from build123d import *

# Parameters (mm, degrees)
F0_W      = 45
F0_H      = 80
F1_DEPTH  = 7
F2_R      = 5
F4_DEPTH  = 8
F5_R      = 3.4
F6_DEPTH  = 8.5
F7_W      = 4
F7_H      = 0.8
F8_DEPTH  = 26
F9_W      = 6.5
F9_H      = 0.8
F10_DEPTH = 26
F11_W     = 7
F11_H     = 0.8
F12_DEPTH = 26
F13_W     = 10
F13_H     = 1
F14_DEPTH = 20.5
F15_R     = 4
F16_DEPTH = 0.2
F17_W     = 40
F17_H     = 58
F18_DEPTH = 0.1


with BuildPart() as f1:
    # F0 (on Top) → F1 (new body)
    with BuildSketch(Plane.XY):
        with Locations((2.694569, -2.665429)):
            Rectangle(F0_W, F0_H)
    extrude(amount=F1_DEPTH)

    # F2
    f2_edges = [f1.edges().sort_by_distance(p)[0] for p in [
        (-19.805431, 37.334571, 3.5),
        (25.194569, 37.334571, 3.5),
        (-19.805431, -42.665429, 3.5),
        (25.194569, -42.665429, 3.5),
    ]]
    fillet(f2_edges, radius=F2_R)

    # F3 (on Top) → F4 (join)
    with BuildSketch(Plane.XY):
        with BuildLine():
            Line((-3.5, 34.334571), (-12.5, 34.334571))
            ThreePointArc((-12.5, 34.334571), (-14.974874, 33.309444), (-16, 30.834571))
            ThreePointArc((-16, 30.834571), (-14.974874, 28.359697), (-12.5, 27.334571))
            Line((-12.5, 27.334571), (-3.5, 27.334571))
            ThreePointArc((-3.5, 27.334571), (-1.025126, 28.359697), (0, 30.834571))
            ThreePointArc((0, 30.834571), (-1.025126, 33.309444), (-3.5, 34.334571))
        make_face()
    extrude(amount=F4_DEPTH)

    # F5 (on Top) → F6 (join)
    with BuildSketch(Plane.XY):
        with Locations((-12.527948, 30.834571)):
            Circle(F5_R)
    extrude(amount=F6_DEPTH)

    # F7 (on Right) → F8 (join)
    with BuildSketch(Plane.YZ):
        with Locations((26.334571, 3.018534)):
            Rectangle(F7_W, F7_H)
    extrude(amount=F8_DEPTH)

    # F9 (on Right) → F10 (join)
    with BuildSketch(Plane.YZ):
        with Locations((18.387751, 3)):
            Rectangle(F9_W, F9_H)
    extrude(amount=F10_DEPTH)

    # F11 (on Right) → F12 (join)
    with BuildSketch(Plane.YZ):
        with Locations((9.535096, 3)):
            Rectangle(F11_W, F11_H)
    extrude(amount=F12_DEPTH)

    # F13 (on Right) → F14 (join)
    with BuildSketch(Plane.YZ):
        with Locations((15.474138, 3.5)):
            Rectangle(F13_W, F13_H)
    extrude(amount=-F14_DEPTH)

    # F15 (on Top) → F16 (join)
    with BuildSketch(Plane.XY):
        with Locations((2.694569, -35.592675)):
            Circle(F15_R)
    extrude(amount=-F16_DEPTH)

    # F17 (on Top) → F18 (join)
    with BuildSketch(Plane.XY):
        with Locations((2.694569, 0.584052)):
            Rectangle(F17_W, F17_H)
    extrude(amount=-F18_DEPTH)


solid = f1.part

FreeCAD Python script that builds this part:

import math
import FreeCAD as App
import Part
import Sketcher

V = App.Vector
Q = App.Units.Quantity


def edges_at(feature, points):
    """Names of the edges that pass closest to the given points."""
    edges = feature.Shape.Edges
    near = lambda p: min(range(len(edges)), key=lambda i: edges[i].distToShape(Part.Vertex(*p))[0])
    return sorted({f"Edge{near(p) + 1}" for p in points})

doc = App.newDocument("Part")
body = doc.addObject("PartDesign::Body", "Body")

# Sketch on XY plane
sketch1 = body.newObject("Sketcher::SketchObject", "Sketch")
sketch1.AttachmentSupport = (doc.getObject("XY_Plane"), [""])
sketch1.MapMode = "FlatFace"
sketch1.addGeometry(Part.LineSegment(V(-19.805431, 37.334571, 0), V(-19.805431, -42.665429, 0)), False)
sketch1.addGeometry(Part.LineSegment(V(-19.805431, -42.665429, 0), V(25.194569, -42.665429, 0)), False)
sketch1.addGeometry(Part.LineSegment(V(25.194569, -42.665429, 0), V(25.194569, 37.334571, 0)), False)
sketch1.addGeometry(Part.LineSegment(V(25.194569, 37.334571, 0), V(-19.805431, 37.334571, 0)), False)
sketch1.addConstraint(Sketcher.Constraint("Coincident", 0, 2, 1, 1))
sketch1.addConstraint(Sketcher.Constraint("Coincident", 1, 2, 2, 1))
sketch1.addConstraint(Sketcher.Constraint("Coincident", 2, 2, 3, 1))
sketch1.addConstraint(Sketcher.Constraint("Coincident", 3, 2, 0, 1))
sketch1.addConstraint(Sketcher.Constraint("Vertical", 0))
sketch1.addConstraint(Sketcher.Constraint("Horizontal", 1))
sketch1.addConstraint(Sketcher.Constraint("Vertical", 2))
sketch1.addConstraint(Sketcher.Constraint("Horizontal", 3))
sketch1.addConstraint(Sketcher.Constraint("DistanceX", 1, 1, 1, 2, Q("45 mm")))
sketch1.addConstraint(Sketcher.Constraint("DistanceY", 0, 2, 0, 1, Q("80 mm")))
sketch1.addConstraint(Sketcher.Constraint("DistanceX", 0, 2, -1, 1, Q("19.805431 mm")))
sketch1.addConstraint(Sketcher.Constraint("DistanceY", 0, 2, -1, 1, Q("42.665429 mm")))
pad1 = body.newObject("PartDesign::Pad", "Pad")
pad1.Profile = sketch1
pad1.Length = 7
doc.recompute()

fillet = body.newObject("PartDesign::Fillet", "Fillet")
fillet.Base = (pad1, edges_at(pad1, [
    (-19.805, 37.335, 3.5),
    (25.195, 37.335, 3.5),
    (-19.805, -42.665, 3.5),
    (25.195, -42.665, 3.5),
]))
fillet.Radius = 5

# Sketch on XY plane
sketch2 = body.newObject("Sketcher::SketchObject", "Sketch001")
sketch2.AttachmentSupport = (doc.getObject("XY_Plane"), [""])
sketch2.MapMode = "FlatFace"
sketch2.addGeometry(Part.LineSegment(V(-3.5, 34.334571, 0), V(-12.5, 34.334571, 0)), False)
sketch2.addGeometry(Part.ArcOfCircle(Part.Circle(V(-12.499999, 30.83457, 0), V(0, 0, 1), 3.500001), math.radians(90.000013), math.radians(179.999987)), False)
sketch2.addGeometry(Part.ArcOfCircle(Part.Circle(V(-12.500001, 30.83457, 0), V(0, 0, 1), 3.499999), math.radians(179.999985), math.radians(270.000015)), False)
sketch2.addGeometry(Part.LineSegment(V(-12.5, 27.334571, 0), V(-3.5, 27.334571, 0)), False)
sketch2.addGeometry(Part.ArcOfCircle(Part.Circle(V(-3.499999, 30.83457, 0), V(0, 0, 1), 3.499999), math.radians(-90.000015), math.radians(0.000015)), False)
sketch2.addGeometry(Part.ArcOfCircle(Part.Circle(V(-3.500001, 30.83457, 0), V(0, 0, 1), 3.500001), math.radians(0.000013), math.radians(89.999987)), False)
sketch2.addConstraint(Sketcher.Constraint("Tangent", 0, 2, 1, 1))
sketch2.addConstraint(Sketcher.Constraint("Tangent", 1, 2, 2, 1))
sketch2.addConstraint(Sketcher.Constraint("Tangent", 2, 2, 3, 1))
sketch2.addConstraint(Sketcher.Constraint("Tangent", 3, 2, 4, 1))
sketch2.addConstraint(Sketcher.Constraint("Tangent", 4, 2, 5, 1))
sketch2.addConstraint(Sketcher.Constraint("Tangent", 5, 2, 0, 1))
sketch2.addConstraint(Sketcher.Constraint("Horizontal", 0))
sketch2.addConstraint(Sketcher.Constraint("Horizontal", 3))
sketch2.addConstraint(Sketcher.Constraint("Equal", 1, 2))
sketch2.addConstraint(Sketcher.Constraint("Equal", 2, 4))
sketch2.addConstraint(Sketcher.Constraint("PointOnObject", 4, 2, -2))
sketch2.addConstraint(Sketcher.Constraint("Horizontal", 5, 3, 1, 2))
sketch2.addConstraint(Sketcher.Constraint("Horizontal", 1, 2, 4, 2))
sketch2.addConstraint(Sketcher.Constraint("Radius", 1, Q("3.500001 mm")))
sketch2.addConstraint(Sketcher.Constraint("DistanceX", 0, 2, 0, 1, Q("9 mm")))
sketch2.addConstraint(Sketcher.Constraint("DistanceY", -1, 1, 1, 3, Q("30.83457 mm")))
pad2 = body.newObject("PartDesign::Pad", "Pad001")
pad2.Profile = sketch2
pad2.Length = 8

# Sketch on XY plane
sketch3 = body.newObject("Sketcher::SketchObject", "Sketch002")
sketch3.AttachmentSupport = (doc.getObject("XY_Plane"), [""])
sketch3.MapMode = "FlatFace"
sketch3.addGeometry(Part.Circle(V(-12.527948, 30.834571, 0), V(0, 0, 1), 3.4), False)
sketch3.addConstraint(Sketcher.Constraint("Diameter", 0, Q("6.8 mm")))
sketch3.addConstraint(Sketcher.Constraint("DistanceY", -1, 1, 0, 3, Q("30.834571 mm")))
sketch3.addConstraint(Sketcher.Constraint("DistanceX", 0, 3, -1, 1, Q("12.527948 mm")))
pad3 = body.newObject("PartDesign::Pad", "Pad002")
pad3.Profile = sketch3
pad3.Length = 8.5

# Sketch on YZ plane
sketch4 = body.newObject("Sketcher::SketchObject", "Sketch003")
sketch4.AttachmentSupport = (doc.getObject("YZ_Plane"), [""])
sketch4.MapMode = "FlatFace"
sketch4.addGeometry(Part.LineSegment(V(24.334571, 3.418534, 0), V(24.334571, 2.618534, 0)), False)
sketch4.addGeometry(Part.LineSegment(V(24.334571, 2.618534, 0), V(28.334571, 2.618534, 0)), False)
sketch4.addGeometry(Part.LineSegment(V(28.334571, 2.618534, 0), V(28.334571, 3.418534, 0)), False)
sketch4.addGeometry(Part.LineSegment(V(28.334571, 3.418534, 0), V(24.334571, 3.418534, 0)), False)
sketch4.addConstraint(Sketcher.Constraint("Coincident", 0, 2, 1, 1))
sketch4.addConstraint(Sketcher.Constraint("Coincident", 1, 2, 2, 1))
sketch4.addConstraint(Sketcher.Constraint("Coincident", 2, 2, 3, 1))
sketch4.addConstraint(Sketcher.Constraint("Coincident", 3, 2, 0, 1))
sketch4.addConstraint(Sketcher.Constraint("Vertical", 0))
sketch4.addConstraint(Sketcher.Constraint("Horizontal", 1))
sketch4.addConstraint(Sketcher.Constraint("Vertical", 2))
sketch4.addConstraint(Sketcher.Constraint("Horizontal", 3))
sketch4.addConstraint(Sketcher.Constraint("DistanceX", 1, 1, 1, 2, Q("4 mm")))
sketch4.addConstraint(Sketcher.Constraint("DistanceY", 0, 2, 0, 1, Q("0.8 mm")))
sketch4.addConstraint(Sketcher.Constraint("DistanceX", -1, 1, 0, 2, Q("24.334571 mm")))
sketch4.addConstraint(Sketcher.Constraint("DistanceY", -1, 1, 0, 2, Q("2.618534 mm")))
pad4 = body.newObject("PartDesign::Pad", "Pad003")
pad4.Profile = sketch4
pad4.Length = 26

# Sketch on YZ plane
sketch5 = body.newObject("Sketcher::SketchObject", "Sketch004")
sketch5.AttachmentSupport = (doc.getObject("YZ_Plane"), [""])
sketch5.MapMode = "FlatFace"
sketch5.addGeometry(Part.LineSegment(V(15.137751, 3.4, 0), V(15.137751, 2.6, 0)), False)
sketch5.addGeometry(Part.LineSegment(V(15.137751, 2.6, 0), V(21.637751, 2.6, 0)), False)
sketch5.addGeometry(Part.LineSegment(V(21.637751, 2.6, 0), V(21.637751, 3.4, 0)), False)
sketch5.addGeometry(Part.LineSegment(V(21.637751, 3.4, 0), V(15.137751, 3.4, 0)), False)
sketch5.addConstraint(Sketcher.Constraint("Coincident", 0, 2, 1, 1))
sketch5.addConstraint(Sketcher.Constraint("Coincident", 1, 2, 2, 1))
sketch5.addConstraint(Sketcher.Constraint("Coincident", 2, 2, 3, 1))
sketch5.addConstraint(Sketcher.Constraint("Coincident", 3, 2, 0, 1))
sketch5.addConstraint(Sketcher.Constraint("Vertical", 0))
sketch5.addConstraint(Sketcher.Constraint("Horizontal", 1))
sketch5.addConstraint(Sketcher.Constraint("Vertical", 2))
sketch5.addConstraint(Sketcher.Constraint("Horizontal", 3))
sketch5.addConstraint(Sketcher.Constraint("DistanceX", 1, 1, 1, 2, Q("6.5 mm")))
sketch5.addConstraint(Sketcher.Constraint("DistanceY", 0, 2, 0, 1, Q("0.8 mm")))
sketch5.addConstraint(Sketcher.Constraint("DistanceY", -1, 1, 0, 2, Q("2.6 mm")))
sketch5.addConstraint(Sketcher.Constraint("DistanceX", -1, 1, 0, 2, Q("15.137751 mm")))
pad5 = body.newObject("PartDesign::Pad", "Pad004")
pad5.Profile = sketch5
pad5.Length = 26

# Sketch on YZ plane
sketch6 = body.newObject("Sketcher::SketchObject", "Sketch005")
sketch6.AttachmentSupport = (doc.getObject("YZ_Plane"), [""])
sketch6.MapMode = "FlatFace"
sketch6.addGeometry(Part.LineSegment(V(6.035096, 3.4, 0), V(6.035096, 2.6, 0)), False)
sketch6.addGeometry(Part.LineSegment(V(6.035096, 2.6, 0), V(13.035096, 2.6, 0)), False)
sketch6.addGeometry(Part.LineSegment(V(13.035096, 2.6, 0), V(13.035096, 3.4, 0)), False)
sketch6.addGeometry(Part.LineSegment(V(13.035096, 3.4, 0), V(6.035096, 3.4, 0)), False)
sketch6.addConstraint(Sketcher.Constraint("Coincident", 0, 2, 1, 1))
sketch6.addConstraint(Sketcher.Constraint("Coincident", 1, 2, 2, 1))
sketch6.addConstraint(Sketcher.Constraint("Coincident", 2, 2, 3, 1))
sketch6.addConstraint(Sketcher.Constraint("Coincident", 3, 2, 0, 1))
sketch6.addConstraint(Sketcher.Constraint("Vertical", 0))
sketch6.addConstraint(Sketcher.Constraint("Horizontal", 1))
sketch6.addConstraint(Sketcher.Constraint("Vertical", 2))
sketch6.addConstraint(Sketcher.Constraint("Horizontal", 3))
sketch6.addConstraint(Sketcher.Constraint("DistanceX", 1, 1, 1, 2, Q("7 mm")))
sketch6.addConstraint(Sketcher.Constraint("DistanceY", 0, 2, 0, 1, Q("0.8 mm")))
sketch6.addConstraint(Sketcher.Constraint("DistanceY", -1, 1, 0, 2, Q("2.6 mm")))
sketch6.addConstraint(Sketcher.Constraint("DistanceX", -1, 1, 0, 2, Q("6.035096 mm")))
pad6 = body.newObject("PartDesign::Pad", "Pad005")
pad6.Profile = sketch6
pad6.Length = 26

# Sketch on YZ plane
sketch7 = body.newObject("Sketcher::SketchObject", "Sketch006")
sketch7.AttachmentSupport = (doc.getObject("YZ_Plane"), [""])
sketch7.MapMode = "FlatFace"
sketch7.addGeometry(Part.LineSegment(V(10.474138, 4, 0), V(10.474138, 3, 0)), False)
sketch7.addGeometry(Part.LineSegment(V(10.474138, 3, 0), V(20.474138, 3, 0)), False)
sketch7.addGeometry(Part.LineSegment(V(20.474138, 3, 0), V(20.474138, 4, 0)), False)
sketch7.addGeometry(Part.LineSegment(V(20.474138, 4, 0), V(10.474138, 4, 0)), False)
sketch7.addConstraint(Sketcher.Constraint("Coincident", 0, 2, 1, 1))
sketch7.addConstraint(Sketcher.Constraint("Coincident", 1, 2, 2, 1))
sketch7.addConstraint(Sketcher.Constraint("Coincident", 2, 2, 3, 1))
sketch7.addConstraint(Sketcher.Constraint("Coincident", 3, 2, 0, 1))
sketch7.addConstraint(Sketcher.Constraint("Vertical", 0))
sketch7.addConstraint(Sketcher.Constraint("Horizontal", 1))
sketch7.addConstraint(Sketcher.Constraint("Vertical", 2))
sketch7.addConstraint(Sketcher.Constraint("Horizontal", 3))
sketch7.addConstraint(Sketcher.Constraint("DistanceX", 1, 1, 1, 2, Q("10 mm")))
sketch7.addConstraint(Sketcher.Constraint("DistanceY", 0, 2, 0, 1, Q("1 mm")))
sketch7.addConstraint(Sketcher.Constraint("DistanceY", -1, 1, 0, 2, Q("3 mm")))
sketch7.addConstraint(Sketcher.Constraint("DistanceX", -1, 1, 1, 2, Q("20.474138 mm")))
pad7 = body.newObject("PartDesign::Pad", "Pad006")
pad7.Profile = sketch7
pad7.Length = 20.5
pad7.Reversed = True

# Sketch on XY plane
sketch8 = body.newObject("Sketcher::SketchObject", "Sketch007")
sketch8.AttachmentSupport = (doc.getObject("XY_Plane"), [""])
sketch8.MapMode = "FlatFace"
sketch8.addGeometry(Part.Circle(V(2.694569, -35.592675, 0), V(0, 0, 1), 4), False)
sketch8.addConstraint(Sketcher.Constraint("Diameter", 0, Q("8 mm")))
sketch8.addConstraint(Sketcher.Constraint("DistanceX", -1, 1, 0, 3, Q("2.694569 mm")))
sketch8.addConstraint(Sketcher.Constraint("DistanceY", 0, 3, -1, 1, Q("35.592675 mm")))
pad8 = body.newObject("PartDesign::Pad", "Pad007")
pad8.Profile = sketch8
pad8.Length = 0.2
pad8.Reversed = True

# Sketch on XY plane
sketch9 = body.newObject("Sketcher::SketchObject", "Sketch008")
sketch9.AttachmentSupport = (doc.getObject("XY_Plane"), [""])
sketch9.MapMode = "FlatFace"
sketch9.addGeometry(Part.LineSegment(V(-17.305431, 29.584052, 0), V(-17.305431, -28.415948, 0)), False)
sketch9.addGeometry(Part.LineSegment(V(-17.305431, -28.415948, 0), V(22.694569, -28.415948, 0)), False)
sketch9.addGeometry(Part.LineSegment(V(22.694569, -28.415948, 0), V(22.694569, 29.584052, 0)), False)
sketch9.addGeometry(Part.LineSegment(V(22.694569, 29.584052, 0), V(-17.305431, 29.584052, 0)), False)
sketch9.addConstraint(Sketcher.Constraint("Coincident", 0, 2, 1, 1))
sketch9.addConstraint(Sketcher.Constraint("Coincident", 1, 2, 2, 1))
sketch9.addConstraint(Sketcher.Constraint("Coincident", 2, 2, 3, 1))
sketch9.addConstraint(Sketcher.Constraint("Coincident", 3, 2, 0, 1))
sketch9.addConstraint(Sketcher.Constraint("Vertical", 0))
sketch9.addConstraint(Sketcher.Constraint("Horizontal", 1))
sketch9.addConstraint(Sketcher.Constraint("Vertical", 2))
sketch9.addConstraint(Sketcher.Constraint("Horizontal", 3))
sketch9.addConstraint(Sketcher.Constraint("DistanceX", 1, 1, 1, 2, Q("40 mm")))
sketch9.addConstraint(Sketcher.Constraint("DistanceY", 0, 2, 0, 1, Q("58 mm")))
sketch9.addConstraint(Sketcher.Constraint("DistanceX", 0, 2, -1, 1, Q("17.305431 mm")))
sketch9.addConstraint(Sketcher.Constraint("DistanceY", 0, 2, -1, 1, Q("28.415948 mm")))
pad9 = body.newObject("PartDesign::Pad", "Pad008")
pad9.Profile = sketch9
pad9.Length = 0.1
pad9.Reversed = True

doc.recompute()
